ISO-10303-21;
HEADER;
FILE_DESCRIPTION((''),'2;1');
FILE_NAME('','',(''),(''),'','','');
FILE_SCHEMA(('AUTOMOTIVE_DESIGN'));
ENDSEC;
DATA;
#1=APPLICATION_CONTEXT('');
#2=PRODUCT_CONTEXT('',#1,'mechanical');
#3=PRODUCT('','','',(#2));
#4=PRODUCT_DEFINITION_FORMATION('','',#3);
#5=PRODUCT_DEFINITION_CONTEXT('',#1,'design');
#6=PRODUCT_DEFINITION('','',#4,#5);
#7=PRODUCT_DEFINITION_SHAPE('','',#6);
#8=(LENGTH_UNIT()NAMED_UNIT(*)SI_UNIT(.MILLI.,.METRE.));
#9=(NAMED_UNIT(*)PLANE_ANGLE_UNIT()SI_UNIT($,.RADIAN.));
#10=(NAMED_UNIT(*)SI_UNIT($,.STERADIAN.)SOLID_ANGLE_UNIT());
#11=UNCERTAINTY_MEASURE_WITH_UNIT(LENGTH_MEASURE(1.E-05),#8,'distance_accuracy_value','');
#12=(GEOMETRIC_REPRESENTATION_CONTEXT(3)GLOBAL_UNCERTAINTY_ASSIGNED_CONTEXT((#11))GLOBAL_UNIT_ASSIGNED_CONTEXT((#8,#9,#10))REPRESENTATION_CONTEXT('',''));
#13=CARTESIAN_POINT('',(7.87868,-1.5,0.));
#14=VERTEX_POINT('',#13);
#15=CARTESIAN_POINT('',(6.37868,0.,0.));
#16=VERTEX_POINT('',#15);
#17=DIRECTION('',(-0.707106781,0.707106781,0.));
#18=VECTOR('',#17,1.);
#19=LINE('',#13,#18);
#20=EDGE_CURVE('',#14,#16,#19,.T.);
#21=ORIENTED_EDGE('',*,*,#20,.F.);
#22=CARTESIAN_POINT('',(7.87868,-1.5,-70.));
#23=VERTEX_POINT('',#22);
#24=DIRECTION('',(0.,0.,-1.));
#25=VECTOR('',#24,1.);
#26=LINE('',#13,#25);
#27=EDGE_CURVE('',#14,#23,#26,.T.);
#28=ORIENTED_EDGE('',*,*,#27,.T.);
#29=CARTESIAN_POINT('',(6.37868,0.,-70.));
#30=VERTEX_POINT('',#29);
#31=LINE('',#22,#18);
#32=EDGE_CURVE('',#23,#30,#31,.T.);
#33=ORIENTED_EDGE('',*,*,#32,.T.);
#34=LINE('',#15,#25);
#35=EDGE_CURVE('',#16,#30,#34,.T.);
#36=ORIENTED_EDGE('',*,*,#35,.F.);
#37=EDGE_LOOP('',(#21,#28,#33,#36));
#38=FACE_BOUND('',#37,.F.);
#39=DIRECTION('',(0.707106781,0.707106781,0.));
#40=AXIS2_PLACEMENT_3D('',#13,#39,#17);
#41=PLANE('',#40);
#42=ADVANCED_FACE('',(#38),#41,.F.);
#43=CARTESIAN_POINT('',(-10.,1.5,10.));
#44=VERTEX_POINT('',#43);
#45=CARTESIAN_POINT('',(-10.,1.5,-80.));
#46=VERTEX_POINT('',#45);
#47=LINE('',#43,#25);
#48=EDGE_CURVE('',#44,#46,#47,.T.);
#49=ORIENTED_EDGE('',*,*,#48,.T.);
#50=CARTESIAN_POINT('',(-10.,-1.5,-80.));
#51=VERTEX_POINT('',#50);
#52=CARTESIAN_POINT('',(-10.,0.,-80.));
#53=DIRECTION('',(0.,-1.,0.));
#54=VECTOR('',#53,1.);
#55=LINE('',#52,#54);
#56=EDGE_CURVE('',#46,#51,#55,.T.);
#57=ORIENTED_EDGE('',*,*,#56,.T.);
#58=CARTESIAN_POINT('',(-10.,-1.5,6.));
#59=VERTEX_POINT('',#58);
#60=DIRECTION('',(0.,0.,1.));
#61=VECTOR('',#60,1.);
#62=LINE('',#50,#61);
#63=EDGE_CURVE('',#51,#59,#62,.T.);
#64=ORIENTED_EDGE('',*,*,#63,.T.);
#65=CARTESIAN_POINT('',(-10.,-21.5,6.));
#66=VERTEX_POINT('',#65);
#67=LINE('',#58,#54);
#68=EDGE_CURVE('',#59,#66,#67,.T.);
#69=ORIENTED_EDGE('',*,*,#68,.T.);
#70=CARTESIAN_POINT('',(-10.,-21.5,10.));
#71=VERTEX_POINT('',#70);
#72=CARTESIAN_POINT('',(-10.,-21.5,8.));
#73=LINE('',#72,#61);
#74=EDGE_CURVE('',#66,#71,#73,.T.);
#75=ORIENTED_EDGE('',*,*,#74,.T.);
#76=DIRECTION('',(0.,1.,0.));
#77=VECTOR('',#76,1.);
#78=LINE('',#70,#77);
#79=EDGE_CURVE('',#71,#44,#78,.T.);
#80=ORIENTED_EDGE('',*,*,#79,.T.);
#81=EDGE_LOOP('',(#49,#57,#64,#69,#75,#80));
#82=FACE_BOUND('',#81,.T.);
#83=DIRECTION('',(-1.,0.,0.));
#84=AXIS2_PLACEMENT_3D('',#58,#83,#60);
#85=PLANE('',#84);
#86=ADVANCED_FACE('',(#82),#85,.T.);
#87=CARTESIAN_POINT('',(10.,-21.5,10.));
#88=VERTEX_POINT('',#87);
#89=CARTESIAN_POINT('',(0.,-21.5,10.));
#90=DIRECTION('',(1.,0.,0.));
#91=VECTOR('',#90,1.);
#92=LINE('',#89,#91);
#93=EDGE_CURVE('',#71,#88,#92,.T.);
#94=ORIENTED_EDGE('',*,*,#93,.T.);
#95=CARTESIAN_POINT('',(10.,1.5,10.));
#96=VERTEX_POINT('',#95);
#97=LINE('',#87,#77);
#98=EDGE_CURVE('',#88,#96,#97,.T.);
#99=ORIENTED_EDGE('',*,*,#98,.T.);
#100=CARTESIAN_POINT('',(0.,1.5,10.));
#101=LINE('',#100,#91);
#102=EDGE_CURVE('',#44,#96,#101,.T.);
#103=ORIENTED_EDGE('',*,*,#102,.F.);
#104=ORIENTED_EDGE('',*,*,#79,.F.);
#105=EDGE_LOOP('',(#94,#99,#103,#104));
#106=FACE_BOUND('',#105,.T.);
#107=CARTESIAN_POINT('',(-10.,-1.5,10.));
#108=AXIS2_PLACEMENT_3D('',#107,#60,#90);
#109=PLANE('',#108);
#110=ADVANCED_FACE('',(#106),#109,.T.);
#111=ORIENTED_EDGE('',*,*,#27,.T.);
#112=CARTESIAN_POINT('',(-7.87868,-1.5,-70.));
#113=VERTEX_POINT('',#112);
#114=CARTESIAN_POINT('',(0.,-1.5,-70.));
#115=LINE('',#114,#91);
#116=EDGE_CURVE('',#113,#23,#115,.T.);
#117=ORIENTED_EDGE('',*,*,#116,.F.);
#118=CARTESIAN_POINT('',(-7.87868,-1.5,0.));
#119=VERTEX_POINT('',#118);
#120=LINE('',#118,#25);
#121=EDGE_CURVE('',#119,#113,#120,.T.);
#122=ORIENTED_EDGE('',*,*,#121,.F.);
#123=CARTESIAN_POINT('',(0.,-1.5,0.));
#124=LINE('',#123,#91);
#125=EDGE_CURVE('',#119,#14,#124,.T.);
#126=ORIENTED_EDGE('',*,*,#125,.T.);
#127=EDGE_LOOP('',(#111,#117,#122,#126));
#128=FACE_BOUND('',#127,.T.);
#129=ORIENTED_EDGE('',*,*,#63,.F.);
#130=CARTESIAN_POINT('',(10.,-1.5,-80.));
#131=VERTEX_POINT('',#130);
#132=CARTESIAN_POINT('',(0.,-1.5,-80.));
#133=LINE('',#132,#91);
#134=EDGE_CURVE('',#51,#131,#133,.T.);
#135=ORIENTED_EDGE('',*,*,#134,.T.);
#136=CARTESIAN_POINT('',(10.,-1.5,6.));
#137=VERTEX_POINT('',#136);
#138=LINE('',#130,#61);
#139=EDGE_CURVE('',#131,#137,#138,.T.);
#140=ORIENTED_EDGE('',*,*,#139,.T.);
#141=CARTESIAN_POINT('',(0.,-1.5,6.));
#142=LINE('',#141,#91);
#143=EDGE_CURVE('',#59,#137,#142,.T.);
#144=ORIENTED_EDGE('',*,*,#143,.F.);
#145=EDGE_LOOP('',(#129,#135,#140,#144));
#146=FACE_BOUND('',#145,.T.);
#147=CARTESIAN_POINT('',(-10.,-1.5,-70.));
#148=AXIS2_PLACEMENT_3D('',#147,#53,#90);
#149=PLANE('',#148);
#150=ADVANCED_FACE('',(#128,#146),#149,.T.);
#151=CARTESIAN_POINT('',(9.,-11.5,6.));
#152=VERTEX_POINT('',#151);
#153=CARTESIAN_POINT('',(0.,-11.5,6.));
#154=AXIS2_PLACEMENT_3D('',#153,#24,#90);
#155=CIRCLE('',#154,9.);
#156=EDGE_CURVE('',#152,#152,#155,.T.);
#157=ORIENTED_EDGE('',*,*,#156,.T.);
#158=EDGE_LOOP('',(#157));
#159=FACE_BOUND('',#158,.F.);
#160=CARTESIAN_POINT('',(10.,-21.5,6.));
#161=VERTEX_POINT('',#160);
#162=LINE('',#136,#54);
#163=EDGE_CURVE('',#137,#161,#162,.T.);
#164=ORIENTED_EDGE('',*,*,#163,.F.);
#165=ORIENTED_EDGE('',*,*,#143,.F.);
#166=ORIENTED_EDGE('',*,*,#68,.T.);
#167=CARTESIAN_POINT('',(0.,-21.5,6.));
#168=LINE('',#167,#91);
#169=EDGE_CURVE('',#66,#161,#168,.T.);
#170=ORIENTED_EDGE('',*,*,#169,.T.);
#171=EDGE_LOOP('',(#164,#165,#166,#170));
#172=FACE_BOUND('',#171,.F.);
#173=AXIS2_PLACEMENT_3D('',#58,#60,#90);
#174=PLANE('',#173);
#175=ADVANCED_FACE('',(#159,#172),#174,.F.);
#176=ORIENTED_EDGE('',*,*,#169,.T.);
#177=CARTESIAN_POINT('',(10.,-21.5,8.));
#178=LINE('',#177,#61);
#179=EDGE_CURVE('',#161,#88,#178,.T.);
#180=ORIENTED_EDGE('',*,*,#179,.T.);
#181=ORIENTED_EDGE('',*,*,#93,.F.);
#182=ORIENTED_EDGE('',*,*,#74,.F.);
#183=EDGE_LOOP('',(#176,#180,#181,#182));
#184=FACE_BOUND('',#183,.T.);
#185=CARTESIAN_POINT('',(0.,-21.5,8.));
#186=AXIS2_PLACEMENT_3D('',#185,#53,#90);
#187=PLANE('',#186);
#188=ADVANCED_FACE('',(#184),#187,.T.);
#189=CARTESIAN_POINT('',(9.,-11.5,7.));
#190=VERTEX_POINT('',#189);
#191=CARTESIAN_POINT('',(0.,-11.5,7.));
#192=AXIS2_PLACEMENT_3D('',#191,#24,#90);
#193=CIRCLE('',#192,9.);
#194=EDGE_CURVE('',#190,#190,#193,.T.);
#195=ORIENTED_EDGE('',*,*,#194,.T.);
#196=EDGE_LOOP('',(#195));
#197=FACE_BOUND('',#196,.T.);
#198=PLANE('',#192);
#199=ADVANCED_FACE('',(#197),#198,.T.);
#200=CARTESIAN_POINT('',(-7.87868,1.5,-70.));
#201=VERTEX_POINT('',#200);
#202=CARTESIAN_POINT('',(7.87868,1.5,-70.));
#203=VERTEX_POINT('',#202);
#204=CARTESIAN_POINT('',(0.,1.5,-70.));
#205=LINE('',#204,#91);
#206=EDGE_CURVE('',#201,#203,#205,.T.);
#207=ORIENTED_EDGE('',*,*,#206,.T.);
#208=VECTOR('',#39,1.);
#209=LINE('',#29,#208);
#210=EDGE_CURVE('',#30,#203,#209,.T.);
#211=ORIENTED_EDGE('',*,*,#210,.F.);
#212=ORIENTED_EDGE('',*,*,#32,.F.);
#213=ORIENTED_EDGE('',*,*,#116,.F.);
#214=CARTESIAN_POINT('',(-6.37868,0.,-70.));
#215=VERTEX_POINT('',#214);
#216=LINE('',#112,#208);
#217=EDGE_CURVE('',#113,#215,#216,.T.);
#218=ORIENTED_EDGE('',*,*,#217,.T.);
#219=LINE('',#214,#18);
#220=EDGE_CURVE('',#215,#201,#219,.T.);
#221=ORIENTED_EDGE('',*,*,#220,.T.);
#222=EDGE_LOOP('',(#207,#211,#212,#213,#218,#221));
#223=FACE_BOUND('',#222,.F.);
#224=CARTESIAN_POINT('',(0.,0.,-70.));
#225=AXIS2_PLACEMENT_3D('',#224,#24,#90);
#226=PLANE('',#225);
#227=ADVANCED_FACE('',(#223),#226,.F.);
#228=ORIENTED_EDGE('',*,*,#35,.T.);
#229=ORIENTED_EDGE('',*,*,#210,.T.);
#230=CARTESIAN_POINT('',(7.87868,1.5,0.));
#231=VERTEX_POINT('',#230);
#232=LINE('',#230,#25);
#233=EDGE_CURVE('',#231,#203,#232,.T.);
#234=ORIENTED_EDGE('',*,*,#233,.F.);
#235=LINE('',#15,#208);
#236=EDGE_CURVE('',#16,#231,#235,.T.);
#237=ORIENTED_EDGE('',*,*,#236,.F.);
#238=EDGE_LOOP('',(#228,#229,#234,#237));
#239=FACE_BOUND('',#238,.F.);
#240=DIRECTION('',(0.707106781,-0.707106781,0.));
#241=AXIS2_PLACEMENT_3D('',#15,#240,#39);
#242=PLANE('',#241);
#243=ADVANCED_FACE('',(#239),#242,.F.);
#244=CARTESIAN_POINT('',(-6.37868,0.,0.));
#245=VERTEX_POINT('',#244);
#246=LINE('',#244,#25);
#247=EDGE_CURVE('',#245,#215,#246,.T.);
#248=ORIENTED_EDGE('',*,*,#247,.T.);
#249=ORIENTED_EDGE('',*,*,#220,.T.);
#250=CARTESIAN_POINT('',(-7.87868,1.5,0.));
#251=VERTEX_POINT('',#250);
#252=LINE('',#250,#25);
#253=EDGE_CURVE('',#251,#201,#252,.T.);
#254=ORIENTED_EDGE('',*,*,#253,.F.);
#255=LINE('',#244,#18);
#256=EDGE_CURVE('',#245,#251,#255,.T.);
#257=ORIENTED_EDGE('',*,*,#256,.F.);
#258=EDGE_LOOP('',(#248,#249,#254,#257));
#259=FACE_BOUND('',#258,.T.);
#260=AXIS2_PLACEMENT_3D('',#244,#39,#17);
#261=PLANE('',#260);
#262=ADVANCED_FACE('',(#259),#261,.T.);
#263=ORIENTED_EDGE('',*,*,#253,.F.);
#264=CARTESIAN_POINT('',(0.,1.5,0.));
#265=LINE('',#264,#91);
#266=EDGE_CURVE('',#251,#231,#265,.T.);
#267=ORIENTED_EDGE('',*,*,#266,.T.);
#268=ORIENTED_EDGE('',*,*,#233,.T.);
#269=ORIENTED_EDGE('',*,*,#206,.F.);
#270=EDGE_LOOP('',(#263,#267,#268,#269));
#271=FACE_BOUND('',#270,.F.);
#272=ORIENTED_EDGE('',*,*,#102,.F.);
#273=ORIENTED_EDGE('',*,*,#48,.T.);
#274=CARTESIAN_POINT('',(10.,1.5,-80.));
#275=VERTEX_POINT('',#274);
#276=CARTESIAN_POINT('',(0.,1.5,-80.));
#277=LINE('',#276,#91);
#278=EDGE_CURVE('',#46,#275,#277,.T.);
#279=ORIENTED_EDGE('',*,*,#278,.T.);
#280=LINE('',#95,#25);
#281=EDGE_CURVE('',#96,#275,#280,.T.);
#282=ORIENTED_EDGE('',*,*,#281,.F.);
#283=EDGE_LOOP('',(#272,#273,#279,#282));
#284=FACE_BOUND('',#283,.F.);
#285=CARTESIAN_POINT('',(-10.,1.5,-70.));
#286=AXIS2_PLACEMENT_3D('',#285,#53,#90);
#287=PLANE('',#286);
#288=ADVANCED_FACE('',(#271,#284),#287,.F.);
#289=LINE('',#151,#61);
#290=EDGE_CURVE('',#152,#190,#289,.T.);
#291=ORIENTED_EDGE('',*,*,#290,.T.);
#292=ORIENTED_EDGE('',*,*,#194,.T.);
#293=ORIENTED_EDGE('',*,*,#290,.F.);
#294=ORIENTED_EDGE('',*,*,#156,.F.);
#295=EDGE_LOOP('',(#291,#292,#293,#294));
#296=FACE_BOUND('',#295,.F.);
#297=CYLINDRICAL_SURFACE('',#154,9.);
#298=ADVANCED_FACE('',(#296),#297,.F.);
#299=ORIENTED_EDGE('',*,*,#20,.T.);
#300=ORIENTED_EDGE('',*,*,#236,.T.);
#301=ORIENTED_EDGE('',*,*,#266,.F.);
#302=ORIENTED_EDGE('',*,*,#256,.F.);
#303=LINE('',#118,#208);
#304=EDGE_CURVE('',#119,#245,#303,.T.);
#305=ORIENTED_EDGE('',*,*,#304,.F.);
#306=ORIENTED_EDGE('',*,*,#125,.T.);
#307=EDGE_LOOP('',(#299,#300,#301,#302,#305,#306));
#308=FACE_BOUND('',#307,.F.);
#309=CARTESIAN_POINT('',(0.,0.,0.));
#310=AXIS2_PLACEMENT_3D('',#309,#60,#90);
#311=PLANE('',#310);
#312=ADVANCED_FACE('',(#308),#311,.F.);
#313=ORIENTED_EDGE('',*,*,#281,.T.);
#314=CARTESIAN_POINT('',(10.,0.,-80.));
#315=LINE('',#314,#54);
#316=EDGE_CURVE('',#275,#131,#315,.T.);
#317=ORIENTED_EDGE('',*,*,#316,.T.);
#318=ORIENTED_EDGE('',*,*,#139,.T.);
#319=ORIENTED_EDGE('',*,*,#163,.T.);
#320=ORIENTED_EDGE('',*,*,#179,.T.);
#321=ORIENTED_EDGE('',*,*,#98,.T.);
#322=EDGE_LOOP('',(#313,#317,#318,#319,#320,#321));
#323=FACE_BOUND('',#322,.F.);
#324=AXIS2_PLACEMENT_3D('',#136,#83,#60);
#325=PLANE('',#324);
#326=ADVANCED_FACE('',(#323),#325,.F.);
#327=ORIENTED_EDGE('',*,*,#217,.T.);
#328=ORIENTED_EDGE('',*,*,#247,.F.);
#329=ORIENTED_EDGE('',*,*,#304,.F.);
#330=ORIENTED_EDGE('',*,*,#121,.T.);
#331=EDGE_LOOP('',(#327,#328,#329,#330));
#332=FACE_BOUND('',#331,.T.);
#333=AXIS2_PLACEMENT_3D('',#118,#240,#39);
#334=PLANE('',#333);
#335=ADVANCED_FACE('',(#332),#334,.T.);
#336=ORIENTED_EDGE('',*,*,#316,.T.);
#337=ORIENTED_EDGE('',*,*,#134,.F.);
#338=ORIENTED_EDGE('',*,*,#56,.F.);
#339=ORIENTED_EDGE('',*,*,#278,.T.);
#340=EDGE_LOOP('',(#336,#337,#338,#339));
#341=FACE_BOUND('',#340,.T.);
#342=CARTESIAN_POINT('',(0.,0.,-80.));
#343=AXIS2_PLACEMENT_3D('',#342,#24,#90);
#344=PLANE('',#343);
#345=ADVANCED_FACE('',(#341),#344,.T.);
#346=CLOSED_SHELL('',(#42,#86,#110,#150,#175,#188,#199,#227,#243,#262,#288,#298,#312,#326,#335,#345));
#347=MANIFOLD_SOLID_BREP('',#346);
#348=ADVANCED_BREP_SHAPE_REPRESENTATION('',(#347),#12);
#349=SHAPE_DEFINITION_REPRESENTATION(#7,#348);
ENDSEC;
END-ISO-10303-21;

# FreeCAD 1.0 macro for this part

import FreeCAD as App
import Part
import Sketcher


def add_polygon(sketch, points):
    """Adds a closed chain of lines whose ends are joined by coincident constraints."""
    first, n = sketch.GeometryCount, len(points)
    for a, b in zip(points, points[1:] + points[:1]):
        sketch.addGeometry(Part.LineSegment(App.Vector(*a, 0), App.Vector(*b, 0)), False)
    for i in range(n):
        sketch.addConstraint(Sketcher.Constraint("Coincident", first + i, 2, first + (i + 1) % n, 1))

doc = App.newDocument("Part")
params = doc.addObject("Spreadsheet::Sheet", "Params")
for row, (alias, value) in enumerate([
    ("sketch1_width", "20 mm"),
    ("sketch1_height", "3 mm"),
    ("pad1_length", "10 mm"),
    ("sketch2_height", "3 mm"),
    ("pad2_length", "70 mm"),
    ("sketch3_width", "20 mm"),
    ("sketch3_height", "3 mm"),
    ("pad3_length", "10 mm"),
    ("sketch4_width", "20 mm"),
    ("sketch4_height", "4 mm"),
    ("pad4_length", "20 mm"),
    ("sketch5_diameter", "18 mm"),
    ("pocket1_length", "1 mm"),
], start=1):
    params.set(f"A{row}", alias)
    params.set(f"B{row}", "=" + value)
    params.setAlias(f"B{row}", alias)

body = doc.addObject("PartDesign::Body", "Body")

# Sketch on XY plane
sketch1 = body.newObject("Sketcher::SketchObject", "Sketch")
sketch1.AttachmentSupport = (doc.getObject("XY_Plane"), [""])
sketch1.MapMode = "FlatFace"
add_polygon(sketch1, [(-10, 1.5), (-10, -1.5), (10, -1.5), (10, 1.5)])  # lines 0-3
sketch1.addConstraint([
    Sketcher.Constraint("Vertical", 0),
    Sketcher.Constraint("Horizontal", 1),
    Sketcher.Constraint("Vertical", 2),
    Sketcher.Constraint("Horizontal", 3),
    Sketcher.Constraint("Symmetric", 0, 2, 2, 2, -1, 1),
    Sketcher.Constraint("DistanceX", 1, 1, 1, 2, 20.0),
    Sketcher.Constraint("DistanceY", 0, 2, 0, 1, 3.0),
])
sketch1.setExpression("Constraints[9]", "Params.sketch1_width")
sketch1.setExpression("Constraints[10]", "Params.sketch1_height")
pad1 = body.newObject("PartDesign::Pad", "Pad")
pad1.Profile = sketch1
pad1.setExpression("Length", "Params.pad1_length")

# Sketch on XY plane
sketch2 = body.newObject("Sketcher::SketchObject", "Sketch001")
sketch2.AttachmentSupport = (doc.getObject("XY_Plane"), [""])
sketch2.MapMode = "FlatFace"
add_polygon(sketch2, [(-6.4, 0), (-7.9, -1.5), (-10, -1.5), (-10, 1.5), (-7.9, 1.5)])  # lines 0-4
add_polygon(sketch2, [(7.9, -1.5), (6.4, 0), (7.9, 1.5), (10, 1.5), (10, -1.5)])  # lines 5-9
sketch2.addConstraint([
    Sketcher.Constraint("Horizontal", 1),
    Sketcher.Constraint("Vertical", 2),
    Sketcher.Constraint("Horizontal", 3),
    Sketcher.Constraint("Horizontal", 7),
    Sketcher.Constraint("Vertical", 8),
    Sketcher.Constraint("Horizontal", 9),
    Sketcher.Constraint("Symmetric", 4, 2, 5, 2, -1, 1),
    Sketcher.Constraint("Symmetric", 0, 2, 6, 2, -1, 1),
    Sketcher.Constraint("Symmetric", 2, 2, 8, 2, -1, 1),
    Sketcher.Constraint("Symmetric", 3, 2, 6, 2, -2),
    Sketcher.Constraint("PointOnObject", 4, 2, -1),
    Sketcher.Constraint("Perpendicular", 0, 4),
    Sketcher.Constraint("Parallel", 4, 5),
    Sketcher.Constraint("DistanceY", 2, 1, 2, 2, 3.0),
    Sketcher.Constraint("DistanceX", 1, 2, -1, 1, 10.0),
    Sketcher.Constraint("DistanceX", 1, 2, 1, 1, 2.12132),
])
sketch2.setExpression("Constraints[23]", "Params.sketch2_height")
pad2 = body.newObject("PartDesign::Pad", "Pad001")
pad2.Profile = sketch2
pad2.setExpression("Length", "Params.pad2_length")
pad2.Reversed = True

# Sketch on XY plane
sketch3 = body.newObject("Sketcher::SketchObject", "Sketch002")
sketch3.AttachmentSupport = (doc.getObject("XY_Plane"), [""])
sketch3.MapMode = "FlatFace"
sketch3.AttachmentOffset = App.Placement(App.Vector(0, 0, -70), App.Rotation())
add_polygon(sketch3, [(-10, -1.5), (-10, 1.5), (10, 1.5), (10, -1.5)])  # lines 0-3
sketch3.addConstraint([
    Sketcher.Constraint("Vertical", 0),
    Sketcher.Constraint("Horizontal", 1),
    Sketcher.Constraint("Vertical", 2),
    Sketcher.Constraint("Horizontal", 3),
    Sketcher.Constraint("Symmetric", 0, 2, 2, 2, -1, 1),
    Sketcher.Constraint("DistanceX", 1, 1, 1, 2, 20.0),
    Sketcher.Constraint("DistanceY", 0, 1, 0, 2, 3.0),
])
sketch3.setExpression("Constraints[9]", "Params.sketch3_width")
sketch3.setExpression("Constraints[10]", "Params.sketch3_height")
pad3 = body.newObject("PartDesign::Pad", "Pad002")
pad3.Profile = sketch3
pad3.setExpression("Length", "Params.pad3_length")
pad3.Reversed = True

# Sketch on XZ plane
sketch4 = body.newObject("Sketcher::SketchObject", "Sketch003")
sketch4.AttachmentSupport = (doc.getObject("XZ_Plane"), [""])
sketch4.MapMode = "FlatFace"
sketch4.AttachmentOffset = App.Placement(App.Vector(0, 0, 1.5), App.Rotation())
add_polygon(sketch4, [(-10, 10), (-10, 6), (10, 6), (10, 10)])  # lines 0-3
sketch4.addConstraint([
    Sketcher.Constraint("Vertical", 0),
    Sketcher.Constraint("Horizontal", 1),
    Sketcher.Constraint("Vertical", 2),
    Sketcher.Constraint("Horizontal", 3),
    Sketcher.Constraint("DistanceX", 1, 1, 1, 2, 20.0),
    Sketcher.Constraint("DistanceY", 0, 2, 0, 1, 4.0),
    Sketcher.Constraint("DistanceX", 0, 2, -1, 1, 10.0),
    Sketcher.Constraint("DistanceY", -1, 1, 0, 2, 6.0),
])
sketch4.setExpression("Constraints[8]", "Params.sketch4_width")
sketch4.setExpression("Constraints[9]", "Params.sketch4_height")
pad4 = body.newObject("PartDesign::Pad", "Pad003")
pad4.Profile = sketch4
pad4.setExpression("Length", "Params.pad4_length")

# Sketch on XY plane
sketch5 = body.newObject("Sketcher::SketchObject", "Sketch004")
sketch5.AttachmentSupport = (doc.getObject("XY_Plane"), [""])
sketch5.MapMode = "FlatFace"
sketch5.AttachmentOffset = App.Placement(App.Vector(0, 0, 6), App.Rotation())
sketch5.addGeometry(Part.Circle(App.Vector(0, -12, 0), App.Vector(0, 0, 1), 9), False)
sketch5.addConstraint([
    Sketcher.Constraint("PointOnObject", 0, 3, -2),
    Sketcher.Constraint("Diameter", 0, 18.0),
    Sketcher.Constraint("DistanceY", 0, 3, -1, 1, 11.5),
])
sketch5.setExpression("Constraints[1]", "Params.sketch5_diameter")
pocket1 = body.newObject("PartDesign::Pocket", "Pocket")
pocket1.Profile = sketch5
pocket1.setExpression("Length", "Params.pocket1_length")
pocket1.Reversed = True

doc.recompute()
